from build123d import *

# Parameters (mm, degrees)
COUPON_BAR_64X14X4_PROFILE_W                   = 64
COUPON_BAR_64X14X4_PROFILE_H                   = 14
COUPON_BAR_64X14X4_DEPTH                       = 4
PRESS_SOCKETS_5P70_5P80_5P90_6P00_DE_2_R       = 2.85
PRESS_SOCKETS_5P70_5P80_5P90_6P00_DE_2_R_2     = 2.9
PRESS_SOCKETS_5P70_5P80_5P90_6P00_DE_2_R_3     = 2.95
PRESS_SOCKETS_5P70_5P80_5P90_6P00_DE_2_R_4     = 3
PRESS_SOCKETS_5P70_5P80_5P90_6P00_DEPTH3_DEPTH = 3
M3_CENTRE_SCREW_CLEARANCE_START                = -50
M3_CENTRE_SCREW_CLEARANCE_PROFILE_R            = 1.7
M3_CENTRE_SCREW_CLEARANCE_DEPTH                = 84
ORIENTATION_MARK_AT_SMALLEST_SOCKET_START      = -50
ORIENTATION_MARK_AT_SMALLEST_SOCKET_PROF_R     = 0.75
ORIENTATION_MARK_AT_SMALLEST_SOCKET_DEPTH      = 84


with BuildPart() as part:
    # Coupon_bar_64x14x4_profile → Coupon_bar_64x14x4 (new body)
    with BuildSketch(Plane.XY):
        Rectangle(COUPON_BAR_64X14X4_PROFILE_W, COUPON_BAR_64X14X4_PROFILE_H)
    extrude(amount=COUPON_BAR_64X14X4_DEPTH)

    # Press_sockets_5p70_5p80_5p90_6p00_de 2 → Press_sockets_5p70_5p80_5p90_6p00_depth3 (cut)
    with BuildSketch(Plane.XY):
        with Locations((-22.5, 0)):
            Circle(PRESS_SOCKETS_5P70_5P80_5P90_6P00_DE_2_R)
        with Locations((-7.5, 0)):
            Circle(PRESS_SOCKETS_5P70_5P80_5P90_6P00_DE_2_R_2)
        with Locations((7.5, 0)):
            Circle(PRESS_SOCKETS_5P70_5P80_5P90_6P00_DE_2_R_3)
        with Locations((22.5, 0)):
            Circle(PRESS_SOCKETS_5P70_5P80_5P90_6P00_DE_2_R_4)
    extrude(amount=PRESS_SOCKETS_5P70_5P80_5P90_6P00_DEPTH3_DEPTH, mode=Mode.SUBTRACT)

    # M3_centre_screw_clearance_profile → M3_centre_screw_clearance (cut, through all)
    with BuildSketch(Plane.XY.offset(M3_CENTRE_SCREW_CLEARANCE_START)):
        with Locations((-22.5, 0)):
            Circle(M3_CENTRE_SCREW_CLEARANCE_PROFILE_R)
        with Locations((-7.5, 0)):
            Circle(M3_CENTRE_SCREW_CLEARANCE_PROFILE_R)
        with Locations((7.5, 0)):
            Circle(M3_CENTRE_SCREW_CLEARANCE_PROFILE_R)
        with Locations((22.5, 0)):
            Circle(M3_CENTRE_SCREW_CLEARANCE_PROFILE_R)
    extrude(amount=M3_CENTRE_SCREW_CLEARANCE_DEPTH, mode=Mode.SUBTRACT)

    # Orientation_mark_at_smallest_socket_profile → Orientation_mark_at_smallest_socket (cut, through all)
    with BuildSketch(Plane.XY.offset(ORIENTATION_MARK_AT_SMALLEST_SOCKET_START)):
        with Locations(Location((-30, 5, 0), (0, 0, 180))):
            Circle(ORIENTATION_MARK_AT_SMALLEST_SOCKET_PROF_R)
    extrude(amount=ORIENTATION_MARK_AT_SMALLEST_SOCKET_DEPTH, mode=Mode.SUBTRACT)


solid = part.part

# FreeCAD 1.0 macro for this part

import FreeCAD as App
import Part
import Sketcher
from FreeCAD import Vector

doc = App.newDocument("Part")
params = doc.addObject("Spreadsheet::Sheet", "Params")
for row, (alias, value) in enumerate([
    ("sketch1_width", "64 mm"),
    ("sketch1_height", "14 mm"),
    ("pad1_length", "4 mm"),
    ("sketch2_diameter", "6 mm"),
    ("sketch2_diameter2", "5.7 mm"),
    ("sketch2_diameter3", "5.8 mm"),
    ("sketch2_diameter4", "5.9 mm"),
    ("pocket1_length", "3 mm"),
    ("sketch3_diameter", "3.4 mm"),
    ("sketch4_diameter", "1.5 mm"),
], start=1):
    params.set(f"A{row}", alias)
    params.set(f"B{row}", "=" + value)
    params.setAlias(f"B{row}", alias)

body = doc.addObject("PartDesign::Body", "Body")

# Sketch on XY plane
sketch1 = doc.addObject("Sketcher::SketchObject", "Sketch")
body.addObject(sketch1)
sketch1.AttachmentSupport = (doc.XY_Plane, [""])
sketch1.MapMode = "FlatFace"
sketch1.addGeometry([
    Part.LineSegment(Vector(-32, 7, 0), Vector(-32, -7, 0)),
    Part.LineSegment(Vector(-32, -7, 0), Vector(32, -7, 0)),
    Part.LineSegment(Vector(32, -7, 0), Vector(32, 7, 0)),
    Part.LineSegment(Vector(32, 7, 0), Vector(-32, 7, 0)),
], False)
sketch1.addConstraint([
    Sketcher.Constraint("Coincident", 0, 2, 1, 1),
    Sketcher.Constraint("Coincident", 1, 2, 2, 1),
    Sketcher.Constraint("Coincident", 2, 2, 3, 1),
    Sketcher.Constraint("Coincident", 3, 2, 0, 1),
    Sketcher.Constraint("Vertical", 0),
    Sketcher.Constraint("Horizontal", 1),
    Sketcher.Constraint("Vertical", 2),
    Sketcher.Constraint("Horizontal", 3),
    Sketcher.Constraint("Symmetric", 0, 2, 2, 2, -1, 1),
    Sketcher.Constraint("DistanceX", 1, 1, 1, 2, 64.0),
    Sketcher.Constraint("DistanceY", 0, 2, 0, 1, 14.0),
])
sketch1.setExpression("Constraints[9]", "Params.sketch1_width")
sketch1.setExpression("Constraints[10]", "Params.sketch1_height")
pad1 = doc.addObject("PartDesign::Pad", "Pad")
body.addObject(pad1)
pad1.Profile = sketch1
pad1.setExpression("Length", "Params.pad1_length")

# Sketch on XY plane
sketch2 = doc.addObject("Sketcher::SketchObject", "Sketch001")
body.addObject(sketch2)
sketch2.AttachmentSupport = (doc.XY_Plane, [""])
sketch2.MapMode = "FlatFace"
sketch2.addGeometry([
    Part.Circle(Vector(-22.5, 0, 0), Vector(0, 0, 1), 2.85),
    Part.Circle(Vector(-7.5, 0, 0), Vector(0, 0, 1), 2.9),
    Part.Circle(Vector(7.5, 0, 0), Vector(0, 0, 1), 2.95),
    Part.Circle(Vector(22.5, 0, 0), Vector(0, 0, 1), 3),
], False)
sketch2.addConstraint([
    Sketcher.Constraint("Symmetric", 1, 3, 2, 3, -1, 1),
    Sketcher.Constraint("Symmetric", 0, 3, 3, 3, -1, 1),
    Sketcher.Constraint("PointOnObject", 0, 3, -1),
    Sketcher.Constraint("PointOnObject", 1, 3, -1),
    Sketcher.Constraint("Diameter", 3, 6.0),
    Sketcher.Constraint("Diameter", 0, 5.7),
    Sketcher.Constraint("Diameter", 1, 5.8),
    Sketcher.Constraint("Diameter", 2, 5.9),
    Sketcher.Constraint("DistanceX", 0, 3, 1, 3, 15.0),
    Sketcher.Constraint("DistanceX", 1, 3, 2, 3, 15.0),
])
sketch2.setExpression("Constraints[4]", "Params.sketch2_diameter")
sketch2.setExpression("Constraints[5]", "Params.sketch2_diameter2")
sketch2.setExpression("Constraints[6]", "Params.sketch2_diameter3")
sketch2.setExpression("Constraints[7]", "Params.sketch2_diameter4")
pocket1 = doc.addObject("PartDesign::Pocket", "Pocket")
body.addObject(pocket1)
pocket1.Profile = sketch2
pocket1.setExpression("Length", "Params.pocket1_length")
pocket1.Reversed = True

# Sketch on XY plane
sketch3 = doc.addObject("Sketcher::SketchObject", "Sketch002")
body.addObject(sketch3)
sketch3.AttachmentSupport = (doc.XY_Plane, [""])
sketch3.MapMode = "FlatFace"
sketch3.AttachmentOffset = App.Placement(Vector(0, 0, -50), App.Rotation())
sketch3.addGeometry([
    Part.Circle(Vector(-22.5, 0, 0), Vector(0, 0, 1), 1.7),
    Part.Circle(Vector(-7.5, 0, 0), Vector(0, 0, 1), 1.7),
    Part.Circle(Vector(7.5, 0, 0), Vector(0, 0, 1), 1.7),
    Part.Circle(Vector(22.5, 0, 0), Vector(0, 0, 1), 1.7),
], False)
sketch3.addConstraint([
    Sketcher.Constraint("Equal", 0, 1),
    Sketcher.Constraint("Equal", 1, 2),
    Sketcher.Constraint("Equal", 2, 3),
    Sketcher.Constraint("Symmetric", 1, 3, 2, 3, -1, 1),
    Sketcher.Constraint("Symmetric", 0, 3, 3, 3, -1, 1),
    Sketcher.Constraint("PointOnObject", 0, 3, -1),
    Sketcher.Constraint("PointOnObject", 1, 3, -1),
    Sketcher.Constraint("Diameter", 0, 3.4),
    Sketcher.Constraint("DistanceX", 0, 3, 1, 3, 15.0),
    Sketcher.Constraint("DistanceX", 1, 3, 2, 3, 15.0),
])
sketch3.setExpression("Constraints[7]", "Params.sketch3_diameter")
pocket2 = doc.addObject("PartDesign::Pocket", "Pocket001")
body.addObject(pocket2)
pocket2.Profile = sketch3
pocket2.Type = "ThroughAll"
pocket2.Reversed = True

# Sketch on XY plane
sketch4 = doc.addObject("Sketcher::SketchObject", "Sketch003")
body.addObject(sketch4)
sketch4.AttachmentSupport = (doc.XY_Plane, [""])
sketch4.MapMode = "FlatFace"
sketch4.AttachmentOffset = App.Placement(Vector(0, 0, -50), App.Rotation())
sketch4.addGeometry(Part.Circle(Vector(-30, 5, 0), Vector(0, 0, 1), 0.75), False)
sketch4.addConstraint([
    Sketcher.Constraint("Diameter", 0, 1.5),
    Sketcher.Constraint("DistanceX", 0, 3, -1, 1, 30.0),
    Sketcher.Constraint("DistanceY", -1, 1, 0, 3, 5.0),
])
sketch4.setExpression("Constraints[0]", "Params.sketch4_diameter")
pocket3 = doc.addObject("PartDesign::Pocket", "Pocket002")
body.addObject(pocket3)
pocket3.Profile = sketch4
pocket3.Type = "ThroughAll"
pocket3.Reversed = True

doc.recompute()
